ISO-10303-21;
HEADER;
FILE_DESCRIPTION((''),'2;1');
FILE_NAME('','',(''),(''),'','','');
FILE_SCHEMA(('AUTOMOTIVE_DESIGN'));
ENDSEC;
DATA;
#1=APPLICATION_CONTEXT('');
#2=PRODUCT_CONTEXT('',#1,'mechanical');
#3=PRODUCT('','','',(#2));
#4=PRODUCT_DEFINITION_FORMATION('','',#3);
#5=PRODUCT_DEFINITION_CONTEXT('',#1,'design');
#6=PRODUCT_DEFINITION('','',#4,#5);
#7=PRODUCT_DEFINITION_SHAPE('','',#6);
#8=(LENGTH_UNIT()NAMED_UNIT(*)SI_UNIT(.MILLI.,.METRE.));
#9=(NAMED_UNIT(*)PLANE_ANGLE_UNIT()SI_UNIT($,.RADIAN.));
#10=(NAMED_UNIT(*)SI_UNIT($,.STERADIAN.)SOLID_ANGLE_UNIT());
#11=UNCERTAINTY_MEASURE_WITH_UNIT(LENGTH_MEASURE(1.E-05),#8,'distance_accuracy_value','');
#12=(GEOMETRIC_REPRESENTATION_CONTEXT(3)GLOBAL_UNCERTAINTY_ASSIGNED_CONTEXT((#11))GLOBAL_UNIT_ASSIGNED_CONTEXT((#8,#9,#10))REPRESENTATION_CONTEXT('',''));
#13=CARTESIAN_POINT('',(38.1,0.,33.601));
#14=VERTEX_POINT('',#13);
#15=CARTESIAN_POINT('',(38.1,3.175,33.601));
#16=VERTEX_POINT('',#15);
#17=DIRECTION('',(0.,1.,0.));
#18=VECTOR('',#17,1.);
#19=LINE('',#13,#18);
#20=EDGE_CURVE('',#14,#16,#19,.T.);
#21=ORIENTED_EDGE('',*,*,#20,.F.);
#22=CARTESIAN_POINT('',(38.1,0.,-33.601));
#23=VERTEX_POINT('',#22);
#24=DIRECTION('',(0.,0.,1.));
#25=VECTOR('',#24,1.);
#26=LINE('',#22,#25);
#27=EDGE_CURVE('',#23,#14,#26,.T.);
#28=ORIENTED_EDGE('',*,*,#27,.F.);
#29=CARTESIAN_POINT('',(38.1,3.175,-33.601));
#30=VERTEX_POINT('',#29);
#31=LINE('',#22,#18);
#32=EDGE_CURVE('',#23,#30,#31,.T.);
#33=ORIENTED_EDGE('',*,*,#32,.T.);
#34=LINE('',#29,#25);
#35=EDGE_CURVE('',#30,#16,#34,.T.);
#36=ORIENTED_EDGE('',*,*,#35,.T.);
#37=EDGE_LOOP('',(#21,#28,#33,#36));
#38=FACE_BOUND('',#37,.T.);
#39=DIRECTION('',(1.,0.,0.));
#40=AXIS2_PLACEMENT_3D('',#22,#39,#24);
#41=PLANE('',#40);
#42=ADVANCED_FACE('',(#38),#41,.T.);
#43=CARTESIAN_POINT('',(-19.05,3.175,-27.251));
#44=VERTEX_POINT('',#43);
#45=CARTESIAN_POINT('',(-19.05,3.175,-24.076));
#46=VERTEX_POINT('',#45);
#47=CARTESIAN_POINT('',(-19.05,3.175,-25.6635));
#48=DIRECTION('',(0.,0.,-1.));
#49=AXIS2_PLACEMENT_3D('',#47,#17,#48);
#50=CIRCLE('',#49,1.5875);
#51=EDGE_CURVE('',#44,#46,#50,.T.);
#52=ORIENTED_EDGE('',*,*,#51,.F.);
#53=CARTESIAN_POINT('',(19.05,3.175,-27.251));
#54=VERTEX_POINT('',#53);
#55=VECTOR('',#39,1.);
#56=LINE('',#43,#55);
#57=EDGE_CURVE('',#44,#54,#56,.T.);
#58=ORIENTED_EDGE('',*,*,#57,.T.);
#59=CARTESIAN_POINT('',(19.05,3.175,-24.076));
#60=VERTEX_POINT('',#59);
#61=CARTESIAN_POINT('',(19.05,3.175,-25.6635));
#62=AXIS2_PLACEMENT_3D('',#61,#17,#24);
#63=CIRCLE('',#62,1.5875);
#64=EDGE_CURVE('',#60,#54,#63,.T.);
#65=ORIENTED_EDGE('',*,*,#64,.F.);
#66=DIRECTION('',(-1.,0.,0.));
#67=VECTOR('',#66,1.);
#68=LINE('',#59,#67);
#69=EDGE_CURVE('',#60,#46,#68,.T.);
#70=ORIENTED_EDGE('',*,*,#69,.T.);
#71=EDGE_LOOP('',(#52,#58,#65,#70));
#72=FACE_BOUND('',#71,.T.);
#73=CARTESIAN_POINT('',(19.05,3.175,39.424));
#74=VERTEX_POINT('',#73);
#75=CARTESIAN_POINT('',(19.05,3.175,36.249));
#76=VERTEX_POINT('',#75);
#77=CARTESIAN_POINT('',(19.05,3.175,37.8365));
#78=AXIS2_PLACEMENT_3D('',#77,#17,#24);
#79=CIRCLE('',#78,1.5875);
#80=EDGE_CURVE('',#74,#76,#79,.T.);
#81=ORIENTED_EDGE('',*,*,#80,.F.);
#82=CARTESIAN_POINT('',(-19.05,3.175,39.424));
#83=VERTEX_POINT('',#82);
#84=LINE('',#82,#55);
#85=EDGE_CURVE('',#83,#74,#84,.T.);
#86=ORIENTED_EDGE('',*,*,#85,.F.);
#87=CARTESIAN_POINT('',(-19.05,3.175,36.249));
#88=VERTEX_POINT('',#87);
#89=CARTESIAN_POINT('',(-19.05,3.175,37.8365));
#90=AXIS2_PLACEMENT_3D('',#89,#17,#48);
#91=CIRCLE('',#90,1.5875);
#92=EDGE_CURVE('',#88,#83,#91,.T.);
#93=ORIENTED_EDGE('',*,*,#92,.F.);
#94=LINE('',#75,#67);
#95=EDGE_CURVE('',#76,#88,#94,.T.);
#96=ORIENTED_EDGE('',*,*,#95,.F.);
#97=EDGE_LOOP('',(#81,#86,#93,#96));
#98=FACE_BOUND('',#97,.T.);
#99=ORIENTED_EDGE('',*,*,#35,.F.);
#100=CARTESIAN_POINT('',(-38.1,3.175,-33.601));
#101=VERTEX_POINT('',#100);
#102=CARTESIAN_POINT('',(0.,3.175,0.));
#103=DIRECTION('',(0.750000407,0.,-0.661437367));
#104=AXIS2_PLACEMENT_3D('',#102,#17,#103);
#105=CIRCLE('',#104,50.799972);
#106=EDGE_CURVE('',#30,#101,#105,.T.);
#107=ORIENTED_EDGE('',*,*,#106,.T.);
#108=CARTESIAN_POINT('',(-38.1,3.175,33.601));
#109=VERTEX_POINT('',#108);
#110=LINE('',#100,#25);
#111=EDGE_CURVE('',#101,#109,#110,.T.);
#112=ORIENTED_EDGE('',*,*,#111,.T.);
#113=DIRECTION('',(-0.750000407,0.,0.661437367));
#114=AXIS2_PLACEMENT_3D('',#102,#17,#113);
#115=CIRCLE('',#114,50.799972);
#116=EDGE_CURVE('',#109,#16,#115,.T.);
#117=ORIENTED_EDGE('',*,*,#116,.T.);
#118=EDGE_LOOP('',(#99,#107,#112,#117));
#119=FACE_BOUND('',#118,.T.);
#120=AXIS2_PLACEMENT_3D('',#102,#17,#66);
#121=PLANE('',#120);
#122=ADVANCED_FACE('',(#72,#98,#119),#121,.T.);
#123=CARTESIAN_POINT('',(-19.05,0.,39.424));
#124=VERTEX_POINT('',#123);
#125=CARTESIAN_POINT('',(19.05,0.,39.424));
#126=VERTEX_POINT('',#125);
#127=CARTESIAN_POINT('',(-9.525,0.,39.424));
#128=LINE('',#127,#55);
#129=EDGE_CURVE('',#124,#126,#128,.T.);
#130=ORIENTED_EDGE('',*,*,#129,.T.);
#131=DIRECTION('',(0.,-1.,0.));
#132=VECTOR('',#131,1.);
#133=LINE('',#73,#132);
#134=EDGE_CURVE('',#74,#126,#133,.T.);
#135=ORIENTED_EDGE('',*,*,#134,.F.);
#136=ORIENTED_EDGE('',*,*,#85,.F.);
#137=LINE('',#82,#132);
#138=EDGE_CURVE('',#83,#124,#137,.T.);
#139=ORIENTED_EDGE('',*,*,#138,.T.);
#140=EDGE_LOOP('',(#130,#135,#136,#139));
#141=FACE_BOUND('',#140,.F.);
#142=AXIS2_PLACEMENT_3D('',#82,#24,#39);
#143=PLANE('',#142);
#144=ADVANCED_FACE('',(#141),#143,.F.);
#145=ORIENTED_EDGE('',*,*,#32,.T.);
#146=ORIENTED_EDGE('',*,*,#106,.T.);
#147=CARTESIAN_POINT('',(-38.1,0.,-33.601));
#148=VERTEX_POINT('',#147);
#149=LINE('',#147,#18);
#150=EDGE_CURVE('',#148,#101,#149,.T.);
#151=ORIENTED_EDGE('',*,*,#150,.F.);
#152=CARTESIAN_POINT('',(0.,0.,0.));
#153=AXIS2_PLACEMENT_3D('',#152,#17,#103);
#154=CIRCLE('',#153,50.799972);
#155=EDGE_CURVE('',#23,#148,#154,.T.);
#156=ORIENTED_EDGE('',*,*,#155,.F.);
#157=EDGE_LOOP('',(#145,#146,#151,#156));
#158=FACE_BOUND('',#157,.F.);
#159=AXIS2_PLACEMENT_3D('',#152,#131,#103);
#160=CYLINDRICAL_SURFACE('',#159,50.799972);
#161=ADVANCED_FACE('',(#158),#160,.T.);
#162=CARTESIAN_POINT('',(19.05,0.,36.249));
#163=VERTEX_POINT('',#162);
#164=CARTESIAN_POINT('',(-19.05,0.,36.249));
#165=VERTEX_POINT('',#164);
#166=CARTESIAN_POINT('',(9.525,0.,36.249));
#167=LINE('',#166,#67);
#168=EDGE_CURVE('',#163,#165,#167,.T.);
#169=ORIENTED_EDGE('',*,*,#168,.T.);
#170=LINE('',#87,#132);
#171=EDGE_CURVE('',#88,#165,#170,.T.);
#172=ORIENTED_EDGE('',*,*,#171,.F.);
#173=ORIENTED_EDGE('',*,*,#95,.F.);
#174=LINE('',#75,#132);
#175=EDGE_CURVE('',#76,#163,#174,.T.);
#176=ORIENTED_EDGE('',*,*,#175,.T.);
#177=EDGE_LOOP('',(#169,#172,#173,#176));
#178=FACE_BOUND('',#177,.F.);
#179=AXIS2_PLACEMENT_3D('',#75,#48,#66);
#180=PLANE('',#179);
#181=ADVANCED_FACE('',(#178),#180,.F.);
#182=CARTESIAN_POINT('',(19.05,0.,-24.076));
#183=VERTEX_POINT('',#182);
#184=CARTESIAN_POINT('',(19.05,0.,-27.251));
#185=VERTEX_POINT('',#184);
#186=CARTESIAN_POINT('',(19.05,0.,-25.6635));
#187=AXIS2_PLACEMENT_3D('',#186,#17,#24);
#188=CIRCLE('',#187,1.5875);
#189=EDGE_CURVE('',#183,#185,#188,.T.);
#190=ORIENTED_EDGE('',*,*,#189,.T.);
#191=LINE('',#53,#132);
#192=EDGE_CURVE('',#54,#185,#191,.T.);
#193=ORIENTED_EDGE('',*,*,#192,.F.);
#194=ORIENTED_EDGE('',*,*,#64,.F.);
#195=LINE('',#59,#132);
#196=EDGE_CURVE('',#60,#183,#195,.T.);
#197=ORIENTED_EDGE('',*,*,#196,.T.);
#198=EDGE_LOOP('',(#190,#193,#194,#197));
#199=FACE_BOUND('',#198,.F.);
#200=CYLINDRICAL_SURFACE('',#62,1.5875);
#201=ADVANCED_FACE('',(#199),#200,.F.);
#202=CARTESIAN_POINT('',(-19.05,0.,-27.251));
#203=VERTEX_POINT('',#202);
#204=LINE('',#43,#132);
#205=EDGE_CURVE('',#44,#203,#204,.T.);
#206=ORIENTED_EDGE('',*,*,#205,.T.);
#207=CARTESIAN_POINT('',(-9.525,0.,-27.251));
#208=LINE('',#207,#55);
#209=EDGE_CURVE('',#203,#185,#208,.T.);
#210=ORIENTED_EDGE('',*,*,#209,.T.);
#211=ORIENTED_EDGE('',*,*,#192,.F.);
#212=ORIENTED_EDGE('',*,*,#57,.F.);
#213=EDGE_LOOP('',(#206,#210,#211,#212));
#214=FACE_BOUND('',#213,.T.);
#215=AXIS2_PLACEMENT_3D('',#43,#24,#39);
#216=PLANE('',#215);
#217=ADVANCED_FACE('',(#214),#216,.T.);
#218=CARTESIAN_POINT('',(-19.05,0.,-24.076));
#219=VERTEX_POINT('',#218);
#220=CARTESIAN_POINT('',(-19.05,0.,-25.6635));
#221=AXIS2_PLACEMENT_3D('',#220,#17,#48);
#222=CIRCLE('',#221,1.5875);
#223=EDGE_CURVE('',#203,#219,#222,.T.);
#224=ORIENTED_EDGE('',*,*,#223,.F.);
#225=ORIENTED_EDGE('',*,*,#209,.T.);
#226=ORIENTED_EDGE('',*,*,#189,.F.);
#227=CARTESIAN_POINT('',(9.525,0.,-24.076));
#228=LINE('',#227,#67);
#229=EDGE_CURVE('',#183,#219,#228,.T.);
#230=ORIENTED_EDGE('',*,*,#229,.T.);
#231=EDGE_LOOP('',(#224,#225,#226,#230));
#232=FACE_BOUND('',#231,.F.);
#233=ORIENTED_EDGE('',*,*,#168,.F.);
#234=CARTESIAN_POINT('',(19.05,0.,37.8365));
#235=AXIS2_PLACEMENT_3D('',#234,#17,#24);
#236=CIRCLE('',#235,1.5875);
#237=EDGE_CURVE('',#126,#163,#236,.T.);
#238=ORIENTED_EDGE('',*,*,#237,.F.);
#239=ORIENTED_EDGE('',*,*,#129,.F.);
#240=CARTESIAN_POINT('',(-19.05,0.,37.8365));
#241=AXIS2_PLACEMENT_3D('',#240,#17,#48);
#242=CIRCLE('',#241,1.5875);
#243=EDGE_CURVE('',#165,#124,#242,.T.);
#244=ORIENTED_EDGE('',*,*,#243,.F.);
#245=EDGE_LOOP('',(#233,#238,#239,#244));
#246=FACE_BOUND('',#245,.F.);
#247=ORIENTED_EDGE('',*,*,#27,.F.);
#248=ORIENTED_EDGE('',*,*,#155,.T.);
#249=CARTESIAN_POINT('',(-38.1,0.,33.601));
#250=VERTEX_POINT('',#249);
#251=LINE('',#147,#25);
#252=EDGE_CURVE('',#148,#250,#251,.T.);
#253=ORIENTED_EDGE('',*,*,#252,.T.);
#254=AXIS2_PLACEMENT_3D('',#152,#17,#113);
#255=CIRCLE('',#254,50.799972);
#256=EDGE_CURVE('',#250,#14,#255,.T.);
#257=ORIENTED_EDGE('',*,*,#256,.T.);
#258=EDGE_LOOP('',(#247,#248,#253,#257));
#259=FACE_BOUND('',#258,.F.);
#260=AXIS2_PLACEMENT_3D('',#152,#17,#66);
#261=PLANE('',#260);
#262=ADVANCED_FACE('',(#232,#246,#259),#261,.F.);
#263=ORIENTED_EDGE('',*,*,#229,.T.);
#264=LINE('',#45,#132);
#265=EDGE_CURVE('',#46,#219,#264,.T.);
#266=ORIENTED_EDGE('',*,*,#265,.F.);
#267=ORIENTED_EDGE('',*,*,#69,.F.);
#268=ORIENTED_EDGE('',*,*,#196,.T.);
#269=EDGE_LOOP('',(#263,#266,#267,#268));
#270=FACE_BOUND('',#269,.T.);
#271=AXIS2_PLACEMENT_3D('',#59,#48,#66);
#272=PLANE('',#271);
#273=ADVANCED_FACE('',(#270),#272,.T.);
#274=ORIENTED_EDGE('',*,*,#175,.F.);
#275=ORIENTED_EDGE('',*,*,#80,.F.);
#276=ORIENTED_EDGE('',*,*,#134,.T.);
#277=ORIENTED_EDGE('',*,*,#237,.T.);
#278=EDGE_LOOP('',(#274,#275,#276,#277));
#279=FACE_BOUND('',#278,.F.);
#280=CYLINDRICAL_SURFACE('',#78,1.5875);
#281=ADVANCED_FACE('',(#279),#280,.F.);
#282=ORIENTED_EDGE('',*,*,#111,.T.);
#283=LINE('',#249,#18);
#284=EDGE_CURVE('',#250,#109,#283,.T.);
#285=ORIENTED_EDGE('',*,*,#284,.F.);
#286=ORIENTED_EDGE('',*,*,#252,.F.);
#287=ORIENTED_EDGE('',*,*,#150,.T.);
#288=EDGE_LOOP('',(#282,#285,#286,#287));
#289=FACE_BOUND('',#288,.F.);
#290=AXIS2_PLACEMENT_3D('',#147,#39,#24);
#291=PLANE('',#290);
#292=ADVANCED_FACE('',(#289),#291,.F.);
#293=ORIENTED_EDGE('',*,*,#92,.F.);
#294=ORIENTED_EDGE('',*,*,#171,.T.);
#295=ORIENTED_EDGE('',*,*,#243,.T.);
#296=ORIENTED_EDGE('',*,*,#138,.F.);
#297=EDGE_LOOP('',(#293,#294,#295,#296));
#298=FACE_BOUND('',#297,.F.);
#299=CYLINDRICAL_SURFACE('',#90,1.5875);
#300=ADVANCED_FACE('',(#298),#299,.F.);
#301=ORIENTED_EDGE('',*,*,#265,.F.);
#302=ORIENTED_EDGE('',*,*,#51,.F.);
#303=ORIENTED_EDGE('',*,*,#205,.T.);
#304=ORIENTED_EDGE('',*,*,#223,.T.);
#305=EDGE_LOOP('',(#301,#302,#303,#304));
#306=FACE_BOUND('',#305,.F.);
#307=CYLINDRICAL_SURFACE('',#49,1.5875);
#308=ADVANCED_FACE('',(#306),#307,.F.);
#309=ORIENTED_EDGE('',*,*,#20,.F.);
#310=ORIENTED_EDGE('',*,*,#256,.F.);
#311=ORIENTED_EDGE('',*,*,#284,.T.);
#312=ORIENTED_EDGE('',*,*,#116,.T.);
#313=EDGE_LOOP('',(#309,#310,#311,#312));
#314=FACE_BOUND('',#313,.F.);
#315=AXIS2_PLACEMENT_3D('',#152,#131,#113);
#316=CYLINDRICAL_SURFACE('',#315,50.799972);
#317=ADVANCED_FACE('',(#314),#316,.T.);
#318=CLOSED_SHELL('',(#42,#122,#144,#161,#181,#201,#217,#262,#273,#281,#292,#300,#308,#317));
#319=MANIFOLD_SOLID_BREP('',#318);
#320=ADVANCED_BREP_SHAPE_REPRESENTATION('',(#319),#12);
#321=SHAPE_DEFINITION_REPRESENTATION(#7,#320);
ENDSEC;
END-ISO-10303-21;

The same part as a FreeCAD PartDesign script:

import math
import FreeCAD as App
import Part
import Sketcher
Q = App.Units.Quantity

doc = App.newDocument("Part")
body = doc.addObject("PartDesign::Body", "Body")

sketch1 = doc.addObject("Sketcher::SketchObject", "Sketch")
body.addObject(sketch1)
sketch1.AttachmentSupport = (doc.XZ_Plane, [""])
sketch1.MapMode = "FlatFace"
sketch1.addGeometry([
    Part.LineSegment(App.Vector(-38, -34, 0), App.Vector(-38, 34, 0)),
    Part.ArcOfCircle(Part.Circle(App.Vector(0, 0, 0), App.Vector(0, 0, 1), 51), math.radians(41), math.radians(139)),
    Part.LineSegment(App.Vector(38, 34, 0), App.Vector(38, -34, 0)),
    Part.ArcOfCircle(Part.Circle(App.Vector(0, 0, 0), App.Vector(0, 0, 1), 51), math.radians(-139), math.radians(-41)),
], False)
sketch1.addConstraint([
    Sketcher.Constraint("Coincident", 0, 2, 1, 2),
    Sketcher.Constraint("Coincident", 1, 1, 2, 1),
    Sketcher.Constraint("Coincident", 2, 2, 3, 2),
    Sketcher.Constraint("Coincident", 3, 1, 0, 1),
    Sketcher.Constraint("Vertical", 0),
    Sketcher.Constraint("Vertical", 2),
    Sketcher.Constraint("Coincident", 1, 3, -1, 1),
    Sketcher.Constraint("Coincident", 3, 3, -1, 1),
    Sketcher.Constraint("Equal", 1, 3),
    Sketcher.Constraint("Horizontal", 0, 2, 1, 1),
    Sketcher.Constraint("Radius", 1, Q("2 in")),
    Sketcher.Constraint("DistanceX", 0, 2, 1, 1, Q("3 in")),
])
pad1 = doc.addObject("PartDesign::Pad", "Pad")
body.addObject(pad1)
pad1.Profile = sketch1
pad1.Length = Q("0.125 in")
pad1.Reversed = True

sketch2 = doc.addObject("Sketcher::SketchObject", "Sketch001")
body.addObject(sketch2)
sketch2.AttachmentSupport = (doc.XZ_Plane, [""])
sketch2.MapMode = "FlatFace"
sketch2.AttachmentOffset = App.Placement(App.Vector(0, 0, -0.125 * 25.4), App.Rotation())
sketch2.addGeometry([
    Part.LineSegment(App.Vector(19.1, -27.3, 0), App.Vector(-19.1, -27.3, 0)),
    Part.ArcOfCircle(Part.Circle(App.Vector(-19.1, -25.7, 0), App.Vector(0, 0, 1), 1.6), math.radians(90), math.radians(270)),
    Part.LineSegment(App.Vector(-19.1, -24.1, 0), App.Vector(19.1, -24.1, 0)),
    Part.ArcOfCircle(Part.Circle(App.Vector(19.1, -25.7, 0), App.Vector(0, 0, 1), 1.6), math.radians(-90), math.radians(90)),
    Part.ArcOfCircle(Part.Circle(App.Vector(-19.1, 37.8, 0), App.Vector(0, 0, 1), 1.6), math.radians(90), math.radians(270)),
    Part.LineSegment(App.Vector(-19.1, 39.4, 0), App.Vector(19.1, 39.4, 0)),
    Part.ArcOfCircle(Part.Circle(App.Vector(19.1, 37.8, 0), App.Vector(0, 0, 1), 1.6), math.radians(-90), math.radians(90)),
    Part.LineSegment(App.Vector(19.1, 36.2, 0), App.Vector(-19.1, 36.2, 0)),
], False)
sketch2.addConstraint([
    Sketcher.Constraint("Tangent", 0, 2, 1, 2),
    Sketcher.Constraint("Tangent", 1, 1, 2, 1),
    Sketcher.Constraint("Tangent", 2, 2, 3, 2),
    Sketcher.Constraint("Tangent", 3, 1, 0, 1),
    Sketcher.Constraint("Tangent", 4, 1, 5, 1),
    Sketcher.Constraint("Tangent", 5, 2, 6, 2),
    Sketcher.Constraint("Tangent", 6, 1, 7, 1),
    Sketcher.Constraint("Tangent", 7, 2, 4, 2),
    Sketcher.Constraint("Horizontal", 0),
    Sketcher.Constraint("Horizontal", 2),
    Sketcher.Constraint("Horizontal", 5),
    Sketcher.Constraint("Horizontal", 7),
    Sketcher.Constraint("Equal", 3, 4),
    Sketcher.Constraint("Vertical", 1, 3, 4, 3),
    Sketcher.Constraint("Vertical", 3, 3, 6, 3),
    Sketcher.Constraint("Radius", 1, Q("0.0625 in")),
    Sketcher.Constraint("DistanceY", 1, 3, 4, 3, Q("2.5 in")),
    Sketcher.Constraint("DistanceX", 1, 3, -1, 1, Q("0.75 in")),
    Sketcher.Constraint("DistanceX", -1, 1, 3, 3, Q("0.75 in")),
    Sketcher.Constraint("DistanceY", 1, 3, -1, 1, 25.6635),
])
pocket1 = doc.addObject("PartDesign::Pocket", "Pocket")
body.addObject(pocket1)
pocket1.Profile = sketch2
pocket1.Type = "ThroughAll"
pocket1.Reversed = True

doc.recompute()
